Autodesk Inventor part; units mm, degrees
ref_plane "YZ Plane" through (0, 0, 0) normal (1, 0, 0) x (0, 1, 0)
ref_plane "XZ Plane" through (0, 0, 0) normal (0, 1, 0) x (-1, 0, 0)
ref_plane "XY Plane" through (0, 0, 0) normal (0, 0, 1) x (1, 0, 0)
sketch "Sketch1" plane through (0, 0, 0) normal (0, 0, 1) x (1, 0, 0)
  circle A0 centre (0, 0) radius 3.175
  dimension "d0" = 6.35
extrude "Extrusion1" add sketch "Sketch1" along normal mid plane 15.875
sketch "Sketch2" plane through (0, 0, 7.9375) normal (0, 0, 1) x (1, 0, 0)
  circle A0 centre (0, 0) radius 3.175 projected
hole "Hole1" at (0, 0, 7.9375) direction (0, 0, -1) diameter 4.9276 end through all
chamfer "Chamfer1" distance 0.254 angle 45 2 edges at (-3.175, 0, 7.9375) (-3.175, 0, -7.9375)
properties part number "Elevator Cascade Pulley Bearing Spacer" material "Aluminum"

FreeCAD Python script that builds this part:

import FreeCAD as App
import Part
import Sketcher

V = App.Vector
Q = App.Units.Quantity


def edges_at(feature, points):
    """Names of the edges that pass closest to the given points."""
    edges = feature.Shape.Edges
    near = lambda p: min(range(len(edges)), key=lambda i: edges[i].distToShape(Part.Vertex(*p))[0])
    return sorted({f"Edge{near(p) + 1}" for p in points})

doc = App.newDocument("Part")
params = doc.addObject("Spreadsheet::Sheet", "Params")
for row, (alias, value) in enumerate([
    ("sketch1_diameter", "0.25 in"),
    ("pad1_length", "0.625 in"),
    ("sketch2_diameter", "0.194 in"),
    ("hole_diameter", "0.194 in"),
    ("chamfer_size", "0.01 in"),
], start=1):
    params.set(f"A{row}", alias)
    params.set(f"B{row}", "=" + value)
    params.setAlias(f"B{row}", alias)

body = doc.addObject("PartDesign::Body", "Body")

# Sketch on XY plane
sketch1 = doc.addObject("Sketcher::SketchObject", "Sketch")
body.addObject(sketch1)
sketch1.AttachmentSupport = (doc.XY_Plane, [""])
sketch1.MapMode = "FlatFace"
sketch1.addGeometry(Part.Circle(V(0, 0, 0), V(0, 0, 1), 3.2), False)
sketch1.addConstraint([
    Sketcher.Constraint("Coincident", 0, 3, -1, 1),
    Sketcher.Constraint("Diameter", 0, Q("0.25 in")),
])
sketch1.setExpression("Constraints[1]", "Params.sketch1_diameter")
pad1 = doc.addObject("PartDesign::Pad", "Pad")
body.addObject(pad1)
pad1.Profile = sketch1
pad1.setExpression("Length", "Params.pad1_length")
pad1.Midplane = True

# Sketch on XY plane
sketch2 = doc.addObject("Sketcher::SketchObject", "Sketch001")
body.addObject(sketch2)
sketch2.AttachmentSupport = (doc.XY_Plane, [""])
sketch2.MapMode = "FlatFace"
sketch2.AttachmentOffset = App.Placement(V(0, 0, 0.3125 * 25.4), App.Rotation())
sketch2.addGeometry(Part.Circle(V(0, 0, 0), V(0, 0, 1), 2.5), False)
sketch2.addConstraint([
    Sketcher.Constraint("Coincident", 0, 3, -1, 1),
    Sketcher.Constraint("Diameter", 0, Q("0.194 in")),
])
sketch2.setExpression("Constraints[1]", "Params.sketch2_diameter")
doc.recompute()
hole = doc.addObject("PartDesign::Hole", "Hole")
body.addObject(hole)
hole.Profile = sketch2
hole.ThreadType = "None"
hole.setExpression("Diameter", "Params.hole_diameter")
hole.DepthType = "ThroughAll"
doc.recompute()

chamfer = doc.addObject("PartDesign::Chamfer", "Chamfer")
body.addObject(chamfer)
chamfer.Base = (hole, edges_at(hole, [(-3.175, 0, 7.938), (-3.175, 0, -7.938)]))
chamfer.setExpression("Size", "Params.chamfer_size")

doc.recompute()
